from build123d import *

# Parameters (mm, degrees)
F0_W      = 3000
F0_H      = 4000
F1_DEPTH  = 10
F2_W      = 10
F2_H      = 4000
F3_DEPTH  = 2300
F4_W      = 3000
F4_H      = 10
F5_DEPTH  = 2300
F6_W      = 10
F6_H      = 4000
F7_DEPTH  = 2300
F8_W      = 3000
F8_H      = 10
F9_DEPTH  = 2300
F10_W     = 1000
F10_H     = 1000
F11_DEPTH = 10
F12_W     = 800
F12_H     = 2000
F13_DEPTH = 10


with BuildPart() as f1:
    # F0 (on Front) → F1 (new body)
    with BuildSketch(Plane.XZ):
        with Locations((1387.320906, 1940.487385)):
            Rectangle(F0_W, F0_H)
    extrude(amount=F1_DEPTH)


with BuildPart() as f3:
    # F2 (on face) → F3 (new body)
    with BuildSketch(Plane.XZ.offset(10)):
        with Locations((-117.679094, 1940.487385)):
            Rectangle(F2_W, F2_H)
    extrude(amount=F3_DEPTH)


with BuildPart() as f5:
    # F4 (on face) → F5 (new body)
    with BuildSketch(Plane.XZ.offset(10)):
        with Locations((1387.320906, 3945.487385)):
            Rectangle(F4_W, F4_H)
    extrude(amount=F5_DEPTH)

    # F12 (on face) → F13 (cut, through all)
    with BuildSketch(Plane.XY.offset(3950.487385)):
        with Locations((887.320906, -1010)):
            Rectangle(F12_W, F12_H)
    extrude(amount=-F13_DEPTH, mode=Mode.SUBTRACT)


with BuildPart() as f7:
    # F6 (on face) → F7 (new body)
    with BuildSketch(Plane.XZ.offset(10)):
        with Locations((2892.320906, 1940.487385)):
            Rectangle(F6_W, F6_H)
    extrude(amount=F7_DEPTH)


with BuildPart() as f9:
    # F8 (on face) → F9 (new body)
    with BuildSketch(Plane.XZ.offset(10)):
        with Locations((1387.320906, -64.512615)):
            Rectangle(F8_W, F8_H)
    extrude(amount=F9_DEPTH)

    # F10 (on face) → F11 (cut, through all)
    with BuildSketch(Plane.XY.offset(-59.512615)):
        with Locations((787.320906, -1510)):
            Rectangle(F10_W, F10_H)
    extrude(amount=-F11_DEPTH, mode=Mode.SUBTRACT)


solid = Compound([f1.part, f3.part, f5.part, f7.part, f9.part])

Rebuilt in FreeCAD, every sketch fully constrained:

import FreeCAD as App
import Part
import Sketcher
from FreeCAD import Vector


def add_polygon(sketch, points):
    """Adds a closed chain of lines whose ends are joined by coincident constraints."""
    first, n = sketch.GeometryCount, len(points)
    for a, b in zip(points, points[1:] + points[:1]):
        sketch.addGeometry(Part.LineSegment(App.Vector(*a, 0), App.Vector(*b, 0)), False)
    for i in range(n):
        sketch.addConstraint(Sketcher.Constraint("Coincident", first + i, 2, first + (i + 1) % n, 1))

doc = App.newDocument("Part")
body = doc.addObject("PartDesign::Body", "Body")

# Sketch on XZ plane
sketch1 = body.newObject("Sketcher::SketchObject", "Sketch")
sketch1.AttachmentSupport = (doc.getObject("XZ_Plane"), [""])
sketch1.MapMode = "FlatFace"
add_polygon(sketch1, [(-113, 3940), (-113, -60), (2887, -60), (2887, 3940)])  # lines 0-3
sketch1.addConstraint([
    Sketcher.Constraint("Vertical", 0),
    Sketcher.Constraint("Horizontal", 1),
    Sketcher.Constraint("Vertical", 2),
    Sketcher.Constraint("Horizontal", 3),
    Sketcher.Constraint("DistanceX", 1, 1, 1, 2, 3000.0),
    Sketcher.Constraint("DistanceY", 0, 2, 0, 1, 4000.0),
    Sketcher.Constraint("DistanceX", 0, 2, -1, 1, 112.679094),
    Sketcher.Constraint("DistanceY", 0, 2, -1, 1, 59.512615),
])
pad1 = body.newObject("PartDesign::Pad", "Pad")
pad1.Profile = sketch1
pad1.Length = 10
body2 = doc.addObject("PartDesign::Body", "Body001")

# Sketch on XZ plane
sketch2 = body2.newObject("Sketcher::SketchObject", "Sketch001")
sketch2.AttachmentSupport = (doc.getObject("XZ_Plane001"), [""])
sketch2.MapMode = "FlatFace"
sketch2.AttachmentOffset = App.Placement(Vector(0, 0, 10), App.Rotation())
add_polygon(sketch2, [(-123, 3940), (-123, -60), (-113, -60), (-113, 3940)])  # lines 0-3
sketch2.addConstraint([
    Sketcher.Constraint("Vertical", 0),
    Sketcher.Constraint("Horizontal", 1),
    Sketcher.Constraint("Vertical", 2),
    Sketcher.Constraint("Horizontal", 3),
    Sketcher.Constraint("DistanceX", 1, 1, 1, 2, 10.0),
    Sketcher.Constraint("DistanceY", 0, 2, 0, 1, 4000.0),
    Sketcher.Constraint("DistanceX", 0, 2, -1, 1, 122.679094),
    Sketcher.Constraint("DistanceY", 0, 2, -1, 1, 59.512615),
])
pad2 = body2.newObject("PartDesign::Pad", "Pad001")
pad2.Profile = sketch2
pad2.Length = 2300
body3 = doc.addObject("PartDesign::Body", "Body002")

# Sketch on XZ plane
sketch3 = body3.newObject("Sketcher::SketchObject", "Sketch002")
sketch3.AttachmentSupport = (doc.getObject("XZ_Plane002"), [""])
sketch3.MapMode = "FlatFace"
sketch3.AttachmentOffset = App.Placement(Vector(0, 0, 10), App.Rotation())
add_polygon(sketch3, [(-113, 3950), (-113, 3940), (2887, 3940), (2887, 3950)])  # lines 0-3
sketch3.addConstraint([
    Sketcher.Constraint("Vertical", 0),
    Sketcher.Constraint("Horizontal", 1),
    Sketcher.Constraint("Vertical", 2),
    Sketcher.Constraint("Horizontal", 3),
    Sketcher.Constraint("DistanceX", 1, 1, 1, 2, 3000.0),
    Sketcher.Constraint("DistanceY", 0, 2, 0, 1, 10.0),
    Sketcher.Constraint("DistanceX", 0, 2, -1, 1, 112.679094),
    Sketcher.Constraint("DistanceY", -1, 1, 0, 2, 3940.487385),
])
pad3 = body3.newObject("PartDesign::Pad", "Pad002")
pad3.Profile = sketch3
pad3.Length = 2300

# Sketch on XY plane
sketch4 = body3.newObject("Sketcher::SketchObject", "Sketch003")
sketch4.AttachmentSupport = (doc.getObject("XY_Plane002"), [""])
sketch4.MapMode = "FlatFace"
sketch4.AttachmentOffset = App.Placement(Vector(0, 0, 3950.487385), App.Rotation())
add_polygon(sketch4, [(487, -10), (487, -2010), (1287, -2010), (1287, -10)])  # lines 0-3
sketch4.addConstraint([
    Sketcher.Constraint("Vertical", 0),
    Sketcher.Constraint("Horizontal", 1),
    Sketcher.Constraint("Vertical", 2),
    Sketcher.Constraint("Horizontal", 3),
    Sketcher.Constraint("DistanceX", 1, 1, 1, 2, 800.0),
    Sketcher.Constraint("DistanceY", 0, 2, 0, 1, 2000.0),
    Sketcher.Constraint("DistanceY", 0, 2, -1, 1, 2010.0),
    Sketcher.Constraint("DistanceX", -1, 1, 0, 2, 487.320906),
])
pocket1 = body3.newObject("PartDesign::Pocket", "Pocket")
pocket1.Profile = sketch4
pocket1.Type = "ThroughAll"
body4 = doc.addObject("PartDesign::Body", "Body003")

# Sketch on XZ plane
sketch5 = body4.newObject("Sketcher::SketchObject", "Sketch004")
sketch5.AttachmentSupport = (doc.getObject("XZ_Plane003"), [""])
sketch5.MapMode = "FlatFace"
sketch5.AttachmentOffset = App.Placement(Vector(0, 0, 10), App.Rotation())
add_polygon(sketch5, [(2887, 3940), (2887, -60), (2897, -60), (2897, 3940)])  # lines 0-3
sketch5.addConstraint([
    Sketcher.Constraint("Vertical", 0),
    Sketcher.Constraint("Horizontal", 1),
    Sketcher.Constraint("Vertical", 2),
    Sketcher.Constraint("Horizontal", 3),
    Sketcher.Constraint("DistanceX", 1, 1, 1, 2, 10.0),
    Sketcher.Constraint("DistanceY", 0, 2, 0, 1, 4000.0),
    Sketcher.Constraint("DistanceX", -1, 1, 0, 2, 2887.320906),
    Sketcher.Constraint("DistanceY", 0, 2, -1, 1, 59.512615),
])
pad4 = body4.newObject("PartDesign::Pad", "Pad003")
pad4.Profile = sketch5
pad4.Length = 2300
body5 = doc.addObject("PartDesign::Body", "Body004")

# Sketch on XZ plane
sketch6 = body5.newObject("Sketcher::SketchObject", "Sketch005")
sketch6.AttachmentSupport = (doc.getObject("XZ_Plane004"), [""])
sketch6.MapMode = "FlatFace"
sketch6.AttachmentOffset = App.Placement(Vector(0, 0, 10), App.Rotation())
add_polygon(sketch6, [(-113, -60), (-113, -70), (2887, -70), (2887, -60)])  # lines 0-3
sketch6.addConstraint([
    Sketcher.Constraint("Vertical", 0),
    Sketcher.Constraint("Horizontal", 1),
    Sketcher.Constraint("Vertical", 2),
    Sketcher.Constraint("Horizontal", 3),
    Sketcher.Constraint("DistanceX", 1, 1, 1, 2, 3000.0),
    Sketcher.Constraint("DistanceY", 0, 2, 0, 1, 10.0),
    Sketcher.Constraint("DistanceX", 0, 2, -1, 1, 112.679094),
    Sketcher.Constraint("DistanceY", 0, 2, -1, 1, 69.512615),
])
pad5 = body5.newObject("PartDesign::Pad", "Pad004")
pad5.Profile = sketch6
pad5.Length = 2300

# Sketch on XY plane
sketch7 = body5.newObject("Sketcher::SketchObject", "Sketch006")
sketch7.AttachmentSupport = (doc.getObject("XY_Plane004"), [""])
sketch7.MapMode = "FlatFace"
sketch7.AttachmentOffset = App.Placement(Vector(0, 0, -59.512615), App.Rotation())
add_polygon(sketch7, [(287, -1010), (287, -2010), (1287, -2010), (1287, -1010)])  # lines 0-3
sketch7.addConstraint([
    Sketcher.Constraint("Vertical", 0),
    Sketcher.Constraint("Horizontal", 1),
    Sketcher.Constraint("Vertical", 2),
    Sketcher.Constraint("Horizontal", 3),
    Sketcher.Constraint("Equal", 3, 0),
    Sketcher.Constraint("DistanceX", 1, 1, 1, 2, 1000.0),
    Sketcher.Constraint("DistanceY", 0, 2, -1, 1, 2010.0),
    Sketcher.Constraint("DistanceX", -1, 1, 0, 2, 287.320906),
])
pocket2 = body5.newObject("PartDesign::Pocket", "Pocket001")
pocket2.Profile = sketch7
pocket2.Type = "ThroughAll"

doc.recompute()
